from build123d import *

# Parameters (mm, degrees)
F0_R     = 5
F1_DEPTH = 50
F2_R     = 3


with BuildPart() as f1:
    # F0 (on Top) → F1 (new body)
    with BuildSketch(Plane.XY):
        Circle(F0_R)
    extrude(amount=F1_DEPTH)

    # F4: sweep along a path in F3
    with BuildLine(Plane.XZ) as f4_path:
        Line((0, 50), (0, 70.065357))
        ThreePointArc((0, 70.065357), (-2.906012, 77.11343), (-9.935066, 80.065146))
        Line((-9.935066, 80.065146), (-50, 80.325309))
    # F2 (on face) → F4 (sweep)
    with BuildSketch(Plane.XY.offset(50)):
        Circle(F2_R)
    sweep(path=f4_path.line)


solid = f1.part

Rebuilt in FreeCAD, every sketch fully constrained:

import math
import FreeCAD as App
import Part
import Sketcher
from FreeCAD import Vector
Q = App.Units.Quantity

doc = App.newDocument("Part")
params = doc.addObject("Spreadsheet::Sheet", "Params")
for row, (alias, value) in enumerate([
    ("sketch1_diameter", "10 mm"),
    ("pad1_length", "50 mm"),
    ("sketch2_diameter", "6 mm"),
    ("sketch3_radius", "10 mm"),
], start=1):
    params.set(f"A{row}", alias)
    params.set(f"B{row}", "=" + value)
    params.setAlias(f"B{row}", alias)

body = doc.addObject("PartDesign::Body", "Body")

sketch1 = body.newObject("Sketcher::SketchObject", "Sketch")
sketch1.AttachmentSupport = (doc.getObject("XY_Plane"), [""])
sketch1.MapMode = "FlatFace"
sketch1.addGeometry(Part.Circle(Vector(0, 0, 0), Vector(0, 0, 1), 5), False)
sketch1.addConstraint(Sketcher.Constraint("Coincident", 0, 3, -1, 1))
sketch1.addConstraint(Sketcher.Constraint("Diameter", 0, Q("10 mm")))
sketch1.setExpression("Constraints[1]", "Params.sketch1_diameter")
pad1 = body.newObject("PartDesign::Pad", "Pad")
pad1.Profile = sketch1
pad1.setExpression("Length", "Params.pad1_length")

sketch2 = body.newObject("Sketcher::SketchObject", "Sketch001")
sketch2.AttachmentSupport = (doc.getObject("XY_Plane"), [""])
sketch2.MapMode = "FlatFace"
sketch2.AttachmentOffset = App.Placement(Vector(0, 0, 50), App.Rotation())
sketch2.addGeometry(Part.Circle(Vector(0, 0, 0), Vector(0, 0, 1), 3), False)
sketch2.addConstraint(Sketcher.Constraint("Coincident", 0, 3, -1, 1))
sketch2.addConstraint(Sketcher.Constraint("Diameter", 0, Q("6 mm")))
sketch2.setExpression("Constraints[1]", "Params.sketch2_diameter")

sketch3 = body.newObject("Sketcher::SketchObject", "Sketch002")
sketch3.AttachmentSupport = (doc.getObject("XZ_Plane"), [""])
sketch3.MapMode = "FlatFace"
sketch3.addGeometry(Part.LineSegment(Vector(0, 50, 0), Vector(0, 70.065357, 0)), False)
sketch3.addGeometry(Part.ArcOfCircle(Part.Circle(Vector(-10, 70.065357, 0), Vector(0, 0, 1), 10), math.radians(0), math.radians(89.627954)), False)
sketch3.addGeometry(Part.LineSegment(Vector(-9.935066, 80.065146, 0), Vector(-50, 80.325309, 0)), False)
sketch3.addConstraint(Sketcher.Constraint("Tangent", 0, 2, 1, 1))
sketch3.addConstraint(Sketcher.Constraint("Tangent", 1, 2, 2, 1))
sketch3.addConstraint(Sketcher.Constraint("Vertical", 0))
sketch3.addConstraint(Sketcher.Constraint("PointOnObject", 0, 1, -2))
sketch3.addConstraint(Sketcher.Constraint("Radius", 1, Q("10 mm")))
sketch3.addConstraint(Sketcher.Constraint("DistanceY", -1, 1, 0, 1, Q("50 mm")))
sketch3.addConstraint(Sketcher.Constraint("DistanceX", 2, 2, -1, 1, Q("50 mm")))
sketch3.addConstraint(Sketcher.Constraint("Distance", 2, Q("40.065779 mm")))
sketch3.addConstraint(Sketcher.Constraint("DistanceY", 0, 1, 0, 2, Q("20.065357 mm")))
sketch3.setExpression("Constraints[4]", "Params.sketch3_radius")
doc.recompute()

additivepipe = body.newObject("PartDesign::AdditivePipe", "AdditivePipe")
additivepipe.Profile = sketch2
additivepipe.Spine = (sketch3, ["Edge1", "Edge2", "Edge3"])

doc.recompute()
